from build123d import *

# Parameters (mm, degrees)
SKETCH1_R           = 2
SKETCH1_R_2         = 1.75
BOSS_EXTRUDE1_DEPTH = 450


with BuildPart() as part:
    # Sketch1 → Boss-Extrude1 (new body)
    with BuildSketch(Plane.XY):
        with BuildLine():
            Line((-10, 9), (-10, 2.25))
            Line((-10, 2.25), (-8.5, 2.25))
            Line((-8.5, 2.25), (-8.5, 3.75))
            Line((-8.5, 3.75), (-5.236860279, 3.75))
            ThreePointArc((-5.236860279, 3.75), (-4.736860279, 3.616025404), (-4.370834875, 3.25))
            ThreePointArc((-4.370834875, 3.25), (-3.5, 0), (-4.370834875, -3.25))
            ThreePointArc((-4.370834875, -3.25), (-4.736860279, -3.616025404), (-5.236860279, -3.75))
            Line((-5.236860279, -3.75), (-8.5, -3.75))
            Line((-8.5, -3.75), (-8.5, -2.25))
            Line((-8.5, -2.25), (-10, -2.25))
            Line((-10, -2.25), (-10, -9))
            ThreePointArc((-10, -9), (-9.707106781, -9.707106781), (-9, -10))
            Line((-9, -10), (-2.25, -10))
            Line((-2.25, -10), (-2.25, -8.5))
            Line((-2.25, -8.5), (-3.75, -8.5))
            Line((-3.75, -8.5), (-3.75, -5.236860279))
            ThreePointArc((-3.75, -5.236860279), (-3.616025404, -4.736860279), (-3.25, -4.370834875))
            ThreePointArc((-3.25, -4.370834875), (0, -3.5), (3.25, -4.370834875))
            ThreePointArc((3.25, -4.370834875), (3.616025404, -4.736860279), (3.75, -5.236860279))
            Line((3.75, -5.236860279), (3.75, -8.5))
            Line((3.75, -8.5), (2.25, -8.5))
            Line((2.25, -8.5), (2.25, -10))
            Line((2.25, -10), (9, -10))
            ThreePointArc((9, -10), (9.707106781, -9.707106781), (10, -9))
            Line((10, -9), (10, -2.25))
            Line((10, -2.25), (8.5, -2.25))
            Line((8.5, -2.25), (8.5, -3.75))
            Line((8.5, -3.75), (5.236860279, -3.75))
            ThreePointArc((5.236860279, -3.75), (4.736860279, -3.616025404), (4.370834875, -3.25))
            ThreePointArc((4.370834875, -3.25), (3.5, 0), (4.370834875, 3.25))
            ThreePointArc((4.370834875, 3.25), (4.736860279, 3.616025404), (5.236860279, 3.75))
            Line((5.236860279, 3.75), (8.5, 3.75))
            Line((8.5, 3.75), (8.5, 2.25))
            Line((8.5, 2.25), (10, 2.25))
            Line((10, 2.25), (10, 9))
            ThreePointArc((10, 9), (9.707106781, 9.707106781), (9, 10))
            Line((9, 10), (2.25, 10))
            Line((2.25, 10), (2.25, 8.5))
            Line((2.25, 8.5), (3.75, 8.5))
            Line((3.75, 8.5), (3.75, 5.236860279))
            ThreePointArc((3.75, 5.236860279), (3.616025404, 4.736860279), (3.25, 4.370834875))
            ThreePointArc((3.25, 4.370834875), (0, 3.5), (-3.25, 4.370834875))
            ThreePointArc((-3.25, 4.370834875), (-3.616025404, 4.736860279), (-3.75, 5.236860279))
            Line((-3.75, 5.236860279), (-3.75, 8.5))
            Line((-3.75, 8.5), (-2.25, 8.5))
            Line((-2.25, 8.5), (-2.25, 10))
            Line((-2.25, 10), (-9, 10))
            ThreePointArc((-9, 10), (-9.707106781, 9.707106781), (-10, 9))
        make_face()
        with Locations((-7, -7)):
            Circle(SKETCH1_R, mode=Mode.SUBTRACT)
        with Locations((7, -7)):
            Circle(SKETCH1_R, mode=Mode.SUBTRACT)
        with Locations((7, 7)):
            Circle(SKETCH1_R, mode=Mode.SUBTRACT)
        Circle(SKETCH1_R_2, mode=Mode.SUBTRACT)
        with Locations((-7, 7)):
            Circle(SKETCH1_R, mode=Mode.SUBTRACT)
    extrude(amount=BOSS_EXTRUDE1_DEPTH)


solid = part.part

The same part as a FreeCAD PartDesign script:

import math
import FreeCAD as App
import Part
import Sketcher
from FreeCAD import Vector

doc = App.newDocument("Part")
body = doc.addObject("PartDesign::Body", "Body")

# Sketch on XY plane
sketch1 = body.newObject("Sketcher::SketchObject", "Sketch")
sketch1.AttachmentSupport = (doc.getObject("XY_Plane"), [""])
sketch1.MapMode = "FlatFace"
sketch1.addGeometry([
    Part.LineSegment(Vector(-10, 9, 0), Vector(-10, 2.25, 0)),  # 0
    Part.LineSegment(Vector(-10, 2.25, 0), Vector(-8.5, 2.25, 0)),  # 1
    Part.LineSegment(Vector(-8.5, 2.25, 0), Vector(-8.5, 3.75, 0)),  # 2
    Part.LineSegment(Vector(-8.5, 3.75, 0), Vector(-5.23686, 3.75, 0)),  # 3
    Part.ArcOfCircle(Part.Circle(Vector(-5.23686, 2.75, 0), Vector(0, 0, 1), 1), math.radians(30), math.radians(90)),  # 4
    Part.ArcOfCircle(Part.Circle(Vector(-10, 0, 0), Vector(0, 0, 1), 6.5), math.radians(-30), math.radians(30)),  # 5
    Part.ArcOfCircle(Part.Circle(Vector(-5.23686, -2.75, 0), Vector(0, 0, 1), 1), math.radians(-90), math.radians(-30)),  # 6
    Part.LineSegment(Vector(-5.23686, -3.75, 0), Vector(-8.5, -3.75, 0)),  # 7
    Part.LineSegment(Vector(-8.5, -3.75, 0), Vector(-8.5, -2.25, 0)),  # 8
    Part.LineSegment(Vector(-8.5, -2.25, 0), Vector(-10, -2.25, 0)),  # 9
    Part.LineSegment(Vector(-10, -2.25, 0), Vector(-10, -9, 0)),  # 10
    Part.ArcOfCircle(Part.Circle(Vector(-9, -9, 0), Vector(0, 0, 1), 1), math.radians(-180), math.radians(-90)),  # 11
    Part.LineSegment(Vector(-9, -10, 0), Vector(-2.25, -10, 0)),  # 12
    Part.LineSegment(Vector(-2.25, -10, 0), Vector(-2.25, -8.5, 0)),  # 13
    Part.LineSegment(Vector(-2.25, -8.5, 0), Vector(-3.75, -8.5, 0)),  # 14
    Part.LineSegment(Vector(-3.75, -8.5, 0), Vector(-3.75, -5.23686, 0)),  # 15
    Part.ArcOfCircle(Part.Circle(Vector(-2.75, -5.23686, 0), Vector(0, 0, 1), 1), math.radians(120), math.radians(180)),  # 16
    Part.ArcOfCircle(Part.Circle(Vector(0, -10, 0), Vector(0, 0, 1), 6.5), math.radians(60), math.radians(120)),  # 17
    Part.ArcOfCircle(Part.Circle(Vector(2.75, -5.23686, 0), Vector(0, 0, 1), 1), math.radians(0), math.radians(60)),  # 18
    Part.LineSegment(Vector(3.75, -5.23686, 0), Vector(3.75, -8.5, 0)),  # 19
    Part.LineSegment(Vector(3.75, -8.5, 0), Vector(2.25, -8.5, 0)),  # 20
    Part.LineSegment(Vector(2.25, -8.5, 0), Vector(2.25, -10, 0)),  # 21
    Part.LineSegment(Vector(2.25, -10, 0), Vector(9, -10, 0)),  # 22
    Part.ArcOfCircle(Part.Circle(Vector(9, -9, 0), Vector(0, 0, 1), 1), math.radians(-90), math.radians(0)),  # 23
    Part.LineSegment(Vector(10, -9, 0), Vector(10, -2.25, 0)),  # 24
    Part.LineSegment(Vector(10, -2.25, 0), Vector(8.5, -2.25, 0)),  # 25
    Part.LineSegment(Vector(8.5, -2.25, 0), Vector(8.5, -3.75, 0)),  # 26
    Part.LineSegment(Vector(8.5, -3.75, 0), Vector(5.23686, -3.75, 0)),  # 27
    Part.ArcOfCircle(Part.Circle(Vector(5.23686, -2.75, 0), Vector(0, 0, 1), 1), math.radians(-150), math.radians(-90)),  # 28
    Part.ArcOfCircle(Part.Circle(Vector(10, 0, 0), Vector(0, 0, 1), 6.5), math.radians(150), math.radians(210)),  # 29
    Part.ArcOfCircle(Part.Circle(Vector(5.23686, 2.75, 0), Vector(0, 0, 1), 1), math.radians(90), math.radians(150)),  # 30
    Part.LineSegment(Vector(5.23686, 3.75, 0), Vector(8.5, 3.75, 0)),  # 31
    Part.LineSegment(Vector(8.5, 3.75, 0), Vector(8.5, 2.25, 0)),  # 32
    Part.LineSegment(Vector(8.5, 2.25, 0), Vector(10, 2.25, 0)),  # 33
    Part.LineSegment(Vector(10, 2.25, 0), Vector(10, 9, 0)),  # 34
    Part.ArcOfCircle(Part.Circle(Vector(9, 9, 0), Vector(0, 0, 1), 1), math.radians(0), math.radians(90)),  # 35
    Part.LineSegment(Vector(9, 10, 0), Vector(2.25, 10, 0)),  # 36
    Part.LineSegment(Vector(2.25, 10, 0), Vector(2.25, 8.5, 0)),  # 37
    Part.LineSegment(Vector(2.25, 8.5, 0), Vector(3.75, 8.5, 0)),  # 38
    Part.LineSegment(Vector(3.75, 8.5, 0), Vector(3.75, 5.23686, 0)),  # 39
    Part.ArcOfCircle(Part.Circle(Vector(2.75, 5.23686, 0), Vector(0, 0, 1), 1), math.radians(-60), math.radians(0)),  # 40
    Part.ArcOfCircle(Part.Circle(Vector(0, 10, 0), Vector(0, 0, 1), 6.5), math.radians(-120), math.radians(-60)),  # 41
    Part.ArcOfCircle(Part.Circle(Vector(-2.75, 5.23686, 0), Vector(0, 0, 1), 1), math.radians(180), math.radians(240)),  # 42
    Part.LineSegment(Vector(-3.75, 5.23686, 0), Vector(-3.75, 8.5, 0)),  # 43
    Part.LineSegment(Vector(-3.75, 8.5, 0), Vector(-2.25, 8.5, 0)),  # 44
    Part.LineSegment(Vector(-2.25, 8.5, 0), Vector(-2.25, 10, 0)),  # 45
    Part.LineSegment(Vector(-2.25, 10, 0), Vector(-9, 10, 0)),  # 46
    Part.ArcOfCircle(Part.Circle(Vector(-9, 9, 0), Vector(0, 0, 1), 1), math.radians(90), math.radians(180)),  # 47
    Part.Circle(Vector(-7, -7, 0), Vector(0, 0, 1), 2),  # 48
    Part.Circle(Vector(7, -7, 0), Vector(0, 0, 1), 2),  # 49
    Part.Circle(Vector(-7, 7, 0), Vector(0, 0, 1), 2),  # 50
    Part.Circle(Vector(0, 0, 0), Vector(0, 0, 1), 1.75),  # 51
    Part.Circle(Vector(7, 7, 0), Vector(0, 0, 1), 2),  # 52
], False)
sketch1.addConstraint([
    Sketcher.Constraint("Coincident", 0, 2, 1, 1),
    Sketcher.Constraint("Coincident", 1, 2, 2, 1),
    Sketcher.Constraint("Coincident", 2, 2, 3, 1),
    Sketcher.Constraint("Tangent", 3, 2, 4, 2),
    Sketcher.Constraint("Tangent", 4, 1, 5, 2),
    Sketcher.Constraint("Tangent", 5, 1, 6, 2),
    Sketcher.Constraint("Tangent", 6, 1, 7, 1),
    Sketcher.Constraint("Coincident", 7, 2, 8, 1),
    Sketcher.Constraint("Coincident", 8, 2, 9, 1),
    Sketcher.Constraint("Coincident", 9, 2, 10, 1),
    Sketcher.Constraint("Tangent", 10, 2, 11, 1),
    Sketcher.Constraint("Tangent", 11, 2, 12, 1),
    Sketcher.Constraint("Coincident", 12, 2, 13, 1),
    Sketcher.Constraint("Coincident", 13, 2, 14, 1),
    Sketcher.Constraint("Coincident", 14, 2, 15, 1),
    Sketcher.Constraint("Tangent", 15, 2, 16, 2),
    Sketcher.Constraint("Tangent", 16, 1, 17, 2),
    Sketcher.Constraint("Tangent", 17, 1, 18, 2),
    Sketcher.Constraint("Tangent", 18, 1, 19, 1),
    Sketcher.Constraint("Coincident", 19, 2, 20, 1),
    Sketcher.Constraint("Coincident", 20, 2, 21, 1),
    Sketcher.Constraint("Coincident", 21, 2, 22, 1),
    Sketcher.Constraint("Tangent", 22, 2, 23, 1),
    Sketcher.Constraint("Tangent", 23, 2, 24, 1),
    Sketcher.Constraint("Coincident", 24, 2, 25, 1),
    Sketcher.Constraint("Coincident", 25, 2, 26, 1),
    Sketcher.Constraint("Coincident", 26, 2, 27, 1),
    Sketcher.Constraint("Tangent", 27, 2, 28, 2),
    Sketcher.Constraint("Tangent", 28, 1, 29, 2),
    Sketcher.Constraint("Tangent", 29, 1, 30, 2),
    Sketcher.Constraint("Tangent", 30, 1, 31, 1),
    Sketcher.Constraint("Coincident", 31, 2, 32, 1),
    Sketcher.Constraint("Coincident", 32, 2, 33, 1),
    Sketcher.Constraint("Coincident", 33, 2, 34, 1),
    Sketcher.Constraint("Tangent", 34, 2, 35, 1),
    Sketcher.Constraint("Tangent", 35, 2, 36, 1),
    Sketcher.Constraint("Coincident", 36, 2, 37, 1),
    Sketcher.Constraint("Coincident", 37, 2, 38, 1),
    Sketcher.Constraint("Coincident", 38, 2, 39, 1),
    Sketcher.Constraint("Tangent", 39, 2, 40, 2),
    Sketcher.Constraint("Tangent", 40, 1, 41, 2),
    Sketcher.Constraint("Tangent", 41, 1, 42, 2),
    Sketcher.Constraint("Tangent", 42, 1, 43, 1),
    Sketcher.Constraint("Coincident", 43, 2, 44, 1),
    Sketcher.Constraint("Coincident", 44, 2, 45, 1),
    Sketcher.Constraint("Coincident", 45, 2, 46, 1),
    Sketcher.Constraint("Tangent", 46, 2, 47, 1),
    Sketcher.Constraint("Tangent", 47, 2, 0, 1),
    Sketcher.Constraint("Vertical", 0),
    Sketcher.Constraint("Horizontal", 1),
    Sketcher.Constraint("Vertical", 2),
    Sketcher.Constraint("Horizontal", 3),
    Sketcher.Constraint("Horizontal", 7),
    Sketcher.Constraint("Vertical", 8),
    Sketcher.Constraint("Horizontal", 9),
    Sketcher.Constraint("Vertical", 10),
    Sketcher.Constraint("Horizontal", 12),
    Sketcher.Constraint("Vertical", 13),
    Sketcher.Constraint("Horizontal", 14),
    Sketcher.Constraint("Vertical", 15),
    Sketcher.Constraint("Vertical", 19),
    Sketcher.Constraint("Horizontal", 20),
    Sketcher.Constraint("Vertical", 21),
    Sketcher.Constraint("Horizontal", 22),
    Sketcher.Constraint("Vertical", 24),
    Sketcher.Constraint("Horizontal", 25),
    Sketcher.Constraint("Vertical", 26),
    Sketcher.Constraint("Horizontal", 27),
    Sketcher.Constraint("Horizontal", 31),
    Sketcher.Constraint("Vertical", 32),
    Sketcher.Constraint("Horizontal", 33),
    Sketcher.Constraint("Vertical", 34),
    Sketcher.Constraint("Horizontal", 36),
    Sketcher.Constraint("Vertical", 37),
    Sketcher.Constraint("Horizontal", 38),
    Sketcher.Constraint("Vertical", 39),
    Sketcher.Constraint("Vertical", 43),
    Sketcher.Constraint("Horizontal", 44),
    Sketcher.Constraint("Vertical", 45),
    Sketcher.Constraint("Horizontal", 46),
    Sketcher.Constraint("Coincident", 51, 3, -1, 1),
    Sketcher.Constraint("Equal", 4, 6),
    Sketcher.Constraint("Equal", 6, 11),
    Sketcher.Constraint("Equal", 11, 16),
    Sketcher.Constraint("Equal", 5, 17),
    Sketcher.Constraint("Equal", 16, 18),
    Sketcher.Constraint("Equal", 18, 23),
    Sketcher.Constraint("Equal", 23, 28),
    Sketcher.Constraint("Equal", 17, 29),
    Sketcher.Constraint("Equal", 28, 30),
    Sketcher.Constraint("Equal", 30, 35),
    Sketcher.Constraint("Equal", 35, 40),
    Sketcher.Constraint("Equal", 29, 41),
    Sketcher.Constraint("Equal", 40, 42),
    Sketcher.Constraint("Equal", 42, 47),
    Sketcher.Constraint("Equal", 48, 49),
    Sketcher.Constraint("Equal", 49, 50),
    Sketcher.Constraint("Equal", 50, 52),
    Sketcher.Constraint("Symmetric", 4, 3, 28, 3, -1, 1),
    Sketcher.Constraint("Symmetric", 6, 3, 30, 3, -1, 1),
    Sketcher.Constraint("Symmetric", 11, 3, 35, 3, -1, 1),
    Sketcher.Constraint("Symmetric", 16, 3, 40, 3, -1, 1),
    Sketcher.Constraint("Symmetric", 18, 3, 42, 3, -1, 1),
    Sketcher.Constraint("Symmetric", 23, 3, 47, 3, -1, 1),
    Sketcher.Constraint("Symmetric", 49, 3, 50, 3, -1, 1),
    Sketcher.Constraint("Symmetric", 48, 3, 52, 3, -1, 1),
    Sketcher.Constraint("Symmetric", 1, 2, 25, 2, -1, 1),
    Sketcher.Constraint("Symmetric", 8, 2, 32, 2, -1, 1),
    Sketcher.Constraint("Symmetric", 13, 2, 37, 2, -1, 1),
    Sketcher.Constraint("Symmetric", 20, 2, 44, 2, -1, 1),
    Sketcher.Constraint("Symmetric", 16, 3, 18, 3, -2),
    Sketcher.Constraint("Symmetric", 11, 3, 23, 3, -2),
    Sketcher.Constraint("Symmetric", 6, 3, 28, 3, -2),
    Sketcher.Constraint("Symmetric", 48, 3, 49, 3, -2),
    Sketcher.Constraint("Symmetric", 13, 2, 20, 2, -2),
    Sketcher.Constraint("Symmetric", 8, 2, 25, 2, -2),
    Sketcher.Constraint("Horizontal", 17, 3, 11, 2),
    Sketcher.Constraint("Vertical", 5, 3, 0, 2),
    Sketcher.Constraint("Equal", 9, 14),
    Sketcher.Constraint("Equal", 46, 0),
    Sketcher.Constraint("Equal", 44, 2),
    Sketcher.Constraint("Equal", 8, 13),
    Sketcher.Constraint("Equal", 31, 15),
    Sketcher.Constraint("Diameter", 48, 4.0),
    Sketcher.Constraint("Radius", 4, 1.0),
    Sketcher.Constraint("Diameter", 51, 3.5),
    Sketcher.Constraint("Radius", 5, 6.5),
    Sketcher.Constraint("DistanceX", 1, 1, 1, 2, 1.5),
    Sketcher.Constraint("DistanceX", 5, 3, -1, 1, 10.0),
    Sketcher.Constraint("DistanceX", 48, 3, -1, 1, 7.0),
    Sketcher.Constraint("DistanceY", 48, 3, -1, 1, 7.0),
    Sketcher.Constraint("DistanceX", 12, 1, 12, 2, 6.75),
])
pad1 = body.newObject("PartDesign::Pad", "Pad")
pad1.Profile = sketch1
pad1.Length = 450

doc.recompute()
